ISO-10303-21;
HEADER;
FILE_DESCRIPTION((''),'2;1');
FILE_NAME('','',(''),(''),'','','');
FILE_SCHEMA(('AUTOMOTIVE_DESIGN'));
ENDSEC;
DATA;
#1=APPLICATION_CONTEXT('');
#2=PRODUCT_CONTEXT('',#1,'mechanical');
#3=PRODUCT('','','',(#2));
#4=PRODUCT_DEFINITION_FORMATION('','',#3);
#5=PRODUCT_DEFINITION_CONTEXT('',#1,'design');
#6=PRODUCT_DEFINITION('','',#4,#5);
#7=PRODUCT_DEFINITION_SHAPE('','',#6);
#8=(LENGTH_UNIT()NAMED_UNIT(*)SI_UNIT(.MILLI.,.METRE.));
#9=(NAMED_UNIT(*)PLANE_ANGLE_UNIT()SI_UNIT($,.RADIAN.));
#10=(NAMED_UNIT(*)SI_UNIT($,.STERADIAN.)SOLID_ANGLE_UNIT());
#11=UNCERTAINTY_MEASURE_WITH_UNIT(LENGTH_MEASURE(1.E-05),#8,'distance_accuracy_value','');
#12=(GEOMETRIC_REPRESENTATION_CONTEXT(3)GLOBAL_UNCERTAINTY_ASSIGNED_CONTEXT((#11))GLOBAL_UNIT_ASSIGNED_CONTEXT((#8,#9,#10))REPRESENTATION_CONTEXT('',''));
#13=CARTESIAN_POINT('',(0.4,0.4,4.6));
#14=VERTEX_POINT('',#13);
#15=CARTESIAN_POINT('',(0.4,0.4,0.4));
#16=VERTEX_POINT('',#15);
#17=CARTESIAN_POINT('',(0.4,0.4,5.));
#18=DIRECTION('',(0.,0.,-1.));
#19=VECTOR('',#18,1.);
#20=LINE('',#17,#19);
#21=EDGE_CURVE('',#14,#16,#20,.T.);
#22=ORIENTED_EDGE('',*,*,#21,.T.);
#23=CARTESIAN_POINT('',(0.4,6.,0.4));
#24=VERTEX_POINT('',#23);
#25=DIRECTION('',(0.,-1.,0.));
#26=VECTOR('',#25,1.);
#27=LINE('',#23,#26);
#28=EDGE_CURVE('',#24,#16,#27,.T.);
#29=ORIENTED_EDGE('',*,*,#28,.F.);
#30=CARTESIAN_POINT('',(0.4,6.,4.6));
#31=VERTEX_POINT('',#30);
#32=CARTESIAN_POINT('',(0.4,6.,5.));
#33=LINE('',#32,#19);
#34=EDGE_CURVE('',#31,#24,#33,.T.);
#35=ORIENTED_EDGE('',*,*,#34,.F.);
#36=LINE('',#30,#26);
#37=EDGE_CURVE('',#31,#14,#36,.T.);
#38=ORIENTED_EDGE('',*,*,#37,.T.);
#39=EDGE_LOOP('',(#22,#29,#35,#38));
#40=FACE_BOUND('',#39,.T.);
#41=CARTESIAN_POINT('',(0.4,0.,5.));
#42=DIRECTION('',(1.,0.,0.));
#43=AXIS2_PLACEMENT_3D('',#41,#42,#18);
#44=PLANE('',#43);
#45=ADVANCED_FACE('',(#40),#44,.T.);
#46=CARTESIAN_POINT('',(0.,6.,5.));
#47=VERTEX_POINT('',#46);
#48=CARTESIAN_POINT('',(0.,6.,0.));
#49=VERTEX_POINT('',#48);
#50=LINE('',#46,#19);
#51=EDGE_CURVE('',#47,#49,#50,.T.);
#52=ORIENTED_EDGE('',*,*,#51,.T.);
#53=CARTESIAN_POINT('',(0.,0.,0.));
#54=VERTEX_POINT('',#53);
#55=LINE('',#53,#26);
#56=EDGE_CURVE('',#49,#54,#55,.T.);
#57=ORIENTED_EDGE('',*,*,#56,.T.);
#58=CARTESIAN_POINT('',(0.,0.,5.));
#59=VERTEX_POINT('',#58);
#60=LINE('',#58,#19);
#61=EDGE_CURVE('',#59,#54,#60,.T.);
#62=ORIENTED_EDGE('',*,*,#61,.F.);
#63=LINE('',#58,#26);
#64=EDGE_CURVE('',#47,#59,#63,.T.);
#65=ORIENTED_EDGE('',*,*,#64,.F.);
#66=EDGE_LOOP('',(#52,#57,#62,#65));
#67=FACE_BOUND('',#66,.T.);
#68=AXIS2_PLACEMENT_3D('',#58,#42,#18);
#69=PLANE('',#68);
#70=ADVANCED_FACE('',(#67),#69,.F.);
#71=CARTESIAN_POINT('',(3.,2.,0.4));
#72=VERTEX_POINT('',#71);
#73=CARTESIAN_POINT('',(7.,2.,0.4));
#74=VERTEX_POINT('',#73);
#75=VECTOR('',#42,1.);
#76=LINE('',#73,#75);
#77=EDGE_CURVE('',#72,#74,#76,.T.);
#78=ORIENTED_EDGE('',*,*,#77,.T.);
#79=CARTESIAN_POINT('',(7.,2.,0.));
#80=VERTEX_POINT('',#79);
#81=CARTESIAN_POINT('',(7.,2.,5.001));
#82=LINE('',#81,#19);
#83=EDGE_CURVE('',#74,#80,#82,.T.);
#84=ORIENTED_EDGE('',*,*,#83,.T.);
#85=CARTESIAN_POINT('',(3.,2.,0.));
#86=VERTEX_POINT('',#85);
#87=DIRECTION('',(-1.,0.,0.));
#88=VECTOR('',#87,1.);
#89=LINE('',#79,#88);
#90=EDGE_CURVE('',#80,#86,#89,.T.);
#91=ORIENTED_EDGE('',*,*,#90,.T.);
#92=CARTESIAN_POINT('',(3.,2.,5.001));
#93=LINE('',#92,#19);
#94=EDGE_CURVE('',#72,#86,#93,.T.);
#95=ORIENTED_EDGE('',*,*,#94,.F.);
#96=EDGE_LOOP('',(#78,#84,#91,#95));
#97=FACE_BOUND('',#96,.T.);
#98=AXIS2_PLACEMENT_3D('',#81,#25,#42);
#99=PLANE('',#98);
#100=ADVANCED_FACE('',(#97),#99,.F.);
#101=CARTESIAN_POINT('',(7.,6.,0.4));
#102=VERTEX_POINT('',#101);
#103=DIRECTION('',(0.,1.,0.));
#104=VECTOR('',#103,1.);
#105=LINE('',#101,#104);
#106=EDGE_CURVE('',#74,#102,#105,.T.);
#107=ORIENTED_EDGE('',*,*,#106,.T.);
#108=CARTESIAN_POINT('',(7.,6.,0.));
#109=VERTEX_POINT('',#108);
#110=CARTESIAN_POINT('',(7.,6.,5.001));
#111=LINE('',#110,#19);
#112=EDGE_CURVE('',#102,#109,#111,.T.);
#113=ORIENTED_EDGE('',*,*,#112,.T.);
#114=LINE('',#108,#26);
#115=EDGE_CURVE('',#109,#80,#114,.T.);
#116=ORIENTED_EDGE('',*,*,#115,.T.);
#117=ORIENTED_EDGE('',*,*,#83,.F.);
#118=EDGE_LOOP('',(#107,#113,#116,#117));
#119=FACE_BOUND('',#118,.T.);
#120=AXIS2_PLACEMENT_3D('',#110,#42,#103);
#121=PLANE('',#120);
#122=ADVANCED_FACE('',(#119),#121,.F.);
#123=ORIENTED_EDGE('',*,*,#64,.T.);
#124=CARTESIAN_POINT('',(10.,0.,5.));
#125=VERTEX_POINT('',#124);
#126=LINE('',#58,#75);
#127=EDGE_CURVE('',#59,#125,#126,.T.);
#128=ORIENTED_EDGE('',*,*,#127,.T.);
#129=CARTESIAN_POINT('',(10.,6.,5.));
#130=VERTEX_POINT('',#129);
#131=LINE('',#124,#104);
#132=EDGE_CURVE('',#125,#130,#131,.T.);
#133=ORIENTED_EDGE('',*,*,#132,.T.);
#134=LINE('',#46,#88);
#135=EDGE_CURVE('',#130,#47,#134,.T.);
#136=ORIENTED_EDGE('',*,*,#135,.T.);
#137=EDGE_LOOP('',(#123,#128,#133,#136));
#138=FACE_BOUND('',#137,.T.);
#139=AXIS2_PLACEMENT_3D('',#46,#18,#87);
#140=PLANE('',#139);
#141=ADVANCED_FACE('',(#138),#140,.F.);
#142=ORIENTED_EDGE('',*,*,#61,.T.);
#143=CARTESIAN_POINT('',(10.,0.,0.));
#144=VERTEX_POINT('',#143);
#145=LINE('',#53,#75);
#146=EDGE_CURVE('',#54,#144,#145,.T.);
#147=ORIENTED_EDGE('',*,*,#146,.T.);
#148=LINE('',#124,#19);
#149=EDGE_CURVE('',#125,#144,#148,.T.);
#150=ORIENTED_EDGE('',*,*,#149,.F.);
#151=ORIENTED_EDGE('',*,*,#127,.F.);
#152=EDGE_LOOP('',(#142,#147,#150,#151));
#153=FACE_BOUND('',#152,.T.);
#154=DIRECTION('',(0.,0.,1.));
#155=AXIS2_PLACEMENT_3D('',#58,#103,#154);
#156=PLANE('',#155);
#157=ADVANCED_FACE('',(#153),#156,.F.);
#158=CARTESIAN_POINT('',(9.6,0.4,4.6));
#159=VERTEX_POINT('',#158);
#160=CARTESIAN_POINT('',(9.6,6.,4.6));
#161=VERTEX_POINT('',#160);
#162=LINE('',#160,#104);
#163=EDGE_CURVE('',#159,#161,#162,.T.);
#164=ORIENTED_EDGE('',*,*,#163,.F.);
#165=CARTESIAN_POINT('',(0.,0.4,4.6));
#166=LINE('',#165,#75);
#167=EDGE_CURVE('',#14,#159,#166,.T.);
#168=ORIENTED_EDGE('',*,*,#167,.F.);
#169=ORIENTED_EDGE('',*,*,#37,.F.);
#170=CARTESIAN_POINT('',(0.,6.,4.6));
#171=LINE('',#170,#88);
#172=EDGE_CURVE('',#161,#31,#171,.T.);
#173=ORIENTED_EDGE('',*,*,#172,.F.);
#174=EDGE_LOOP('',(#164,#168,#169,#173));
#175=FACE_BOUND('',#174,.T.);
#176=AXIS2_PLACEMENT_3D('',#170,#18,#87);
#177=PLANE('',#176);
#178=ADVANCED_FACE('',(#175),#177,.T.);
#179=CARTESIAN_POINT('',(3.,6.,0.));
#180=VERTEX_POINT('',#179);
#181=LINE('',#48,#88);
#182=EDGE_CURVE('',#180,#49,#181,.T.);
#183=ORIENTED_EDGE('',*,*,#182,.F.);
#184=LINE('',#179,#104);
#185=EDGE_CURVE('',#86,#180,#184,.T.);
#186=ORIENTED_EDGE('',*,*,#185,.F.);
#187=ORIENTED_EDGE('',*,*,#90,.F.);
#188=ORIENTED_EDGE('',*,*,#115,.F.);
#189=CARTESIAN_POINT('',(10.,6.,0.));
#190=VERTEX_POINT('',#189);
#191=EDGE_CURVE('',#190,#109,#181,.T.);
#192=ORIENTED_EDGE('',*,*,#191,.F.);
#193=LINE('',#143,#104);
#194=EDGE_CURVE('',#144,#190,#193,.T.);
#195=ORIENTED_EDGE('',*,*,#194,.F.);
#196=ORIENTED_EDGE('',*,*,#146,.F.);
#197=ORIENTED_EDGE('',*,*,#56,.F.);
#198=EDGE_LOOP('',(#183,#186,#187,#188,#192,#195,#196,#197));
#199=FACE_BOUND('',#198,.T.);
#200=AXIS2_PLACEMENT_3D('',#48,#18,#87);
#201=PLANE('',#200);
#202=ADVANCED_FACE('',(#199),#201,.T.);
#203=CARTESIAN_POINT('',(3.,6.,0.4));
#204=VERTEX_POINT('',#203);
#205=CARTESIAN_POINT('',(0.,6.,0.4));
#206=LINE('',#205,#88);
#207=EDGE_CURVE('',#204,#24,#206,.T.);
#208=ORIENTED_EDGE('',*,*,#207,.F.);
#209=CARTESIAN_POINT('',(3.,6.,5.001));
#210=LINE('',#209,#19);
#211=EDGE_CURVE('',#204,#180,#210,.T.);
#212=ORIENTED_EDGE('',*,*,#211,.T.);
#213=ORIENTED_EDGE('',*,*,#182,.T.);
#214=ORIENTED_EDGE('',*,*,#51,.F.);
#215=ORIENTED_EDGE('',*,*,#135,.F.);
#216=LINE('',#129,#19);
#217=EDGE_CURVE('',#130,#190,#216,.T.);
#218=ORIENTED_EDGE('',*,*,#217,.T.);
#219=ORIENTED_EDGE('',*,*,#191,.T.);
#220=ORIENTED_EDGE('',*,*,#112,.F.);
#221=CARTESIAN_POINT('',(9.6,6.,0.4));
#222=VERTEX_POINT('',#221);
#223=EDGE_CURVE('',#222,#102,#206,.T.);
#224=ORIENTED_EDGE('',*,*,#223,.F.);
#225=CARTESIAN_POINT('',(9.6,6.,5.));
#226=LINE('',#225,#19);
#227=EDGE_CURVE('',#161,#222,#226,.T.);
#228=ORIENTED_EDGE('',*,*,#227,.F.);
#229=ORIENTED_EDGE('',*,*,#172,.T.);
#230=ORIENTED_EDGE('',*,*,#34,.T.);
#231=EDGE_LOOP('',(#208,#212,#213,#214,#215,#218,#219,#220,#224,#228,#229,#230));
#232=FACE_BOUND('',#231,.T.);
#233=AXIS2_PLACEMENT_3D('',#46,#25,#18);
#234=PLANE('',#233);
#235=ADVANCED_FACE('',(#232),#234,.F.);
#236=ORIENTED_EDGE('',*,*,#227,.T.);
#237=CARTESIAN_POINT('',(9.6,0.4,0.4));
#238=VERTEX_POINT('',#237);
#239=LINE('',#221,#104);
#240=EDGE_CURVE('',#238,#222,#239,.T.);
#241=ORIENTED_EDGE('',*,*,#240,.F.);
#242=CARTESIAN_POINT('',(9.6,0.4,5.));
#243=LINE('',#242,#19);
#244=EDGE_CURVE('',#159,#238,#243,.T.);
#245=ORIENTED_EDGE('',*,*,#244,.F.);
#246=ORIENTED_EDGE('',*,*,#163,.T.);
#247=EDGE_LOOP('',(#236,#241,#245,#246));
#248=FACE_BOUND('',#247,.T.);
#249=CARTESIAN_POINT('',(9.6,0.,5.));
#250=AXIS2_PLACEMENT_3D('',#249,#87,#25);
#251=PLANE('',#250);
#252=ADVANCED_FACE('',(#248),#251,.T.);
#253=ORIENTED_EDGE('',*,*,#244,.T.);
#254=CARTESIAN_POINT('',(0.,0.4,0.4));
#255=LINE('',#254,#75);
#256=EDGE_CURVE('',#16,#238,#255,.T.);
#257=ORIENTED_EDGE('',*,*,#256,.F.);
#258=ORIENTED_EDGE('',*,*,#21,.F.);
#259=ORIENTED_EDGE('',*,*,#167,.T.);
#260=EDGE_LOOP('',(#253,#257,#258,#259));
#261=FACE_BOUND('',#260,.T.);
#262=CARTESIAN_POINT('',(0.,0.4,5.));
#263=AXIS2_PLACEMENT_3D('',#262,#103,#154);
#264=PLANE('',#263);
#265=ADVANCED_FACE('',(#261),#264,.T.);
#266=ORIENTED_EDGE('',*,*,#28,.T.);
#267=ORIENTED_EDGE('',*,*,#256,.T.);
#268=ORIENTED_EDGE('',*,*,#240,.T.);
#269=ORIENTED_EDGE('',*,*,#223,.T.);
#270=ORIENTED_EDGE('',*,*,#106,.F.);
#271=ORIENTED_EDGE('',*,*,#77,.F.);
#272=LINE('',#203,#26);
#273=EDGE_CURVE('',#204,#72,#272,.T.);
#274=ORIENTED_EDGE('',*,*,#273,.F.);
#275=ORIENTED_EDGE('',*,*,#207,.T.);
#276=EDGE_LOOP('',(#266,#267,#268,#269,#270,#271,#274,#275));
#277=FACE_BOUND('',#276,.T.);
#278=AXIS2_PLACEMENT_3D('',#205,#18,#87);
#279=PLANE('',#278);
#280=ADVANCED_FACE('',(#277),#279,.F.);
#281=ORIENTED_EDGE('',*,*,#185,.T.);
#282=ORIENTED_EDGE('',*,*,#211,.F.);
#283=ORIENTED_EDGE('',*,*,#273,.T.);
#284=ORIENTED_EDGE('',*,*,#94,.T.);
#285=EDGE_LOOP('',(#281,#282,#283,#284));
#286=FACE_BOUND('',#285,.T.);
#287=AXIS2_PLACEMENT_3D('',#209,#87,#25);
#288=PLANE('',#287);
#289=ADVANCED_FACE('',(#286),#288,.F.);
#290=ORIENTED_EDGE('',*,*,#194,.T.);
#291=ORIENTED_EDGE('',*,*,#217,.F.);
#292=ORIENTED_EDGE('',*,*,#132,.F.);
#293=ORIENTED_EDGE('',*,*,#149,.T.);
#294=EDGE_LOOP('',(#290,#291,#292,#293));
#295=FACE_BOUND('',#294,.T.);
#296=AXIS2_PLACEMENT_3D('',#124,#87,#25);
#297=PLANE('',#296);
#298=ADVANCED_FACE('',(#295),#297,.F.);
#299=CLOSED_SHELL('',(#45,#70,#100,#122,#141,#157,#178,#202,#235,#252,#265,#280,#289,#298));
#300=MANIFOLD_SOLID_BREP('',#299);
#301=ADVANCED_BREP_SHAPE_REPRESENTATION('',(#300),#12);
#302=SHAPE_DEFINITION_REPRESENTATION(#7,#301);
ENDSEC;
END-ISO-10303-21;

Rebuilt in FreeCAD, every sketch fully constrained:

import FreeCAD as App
import Part
import Sketcher

V = App.Vector
Q = App.Units.Quantity


def faces_at(feature, points):
    """Names of the faces that lie closest to the given points."""
    faces = feature.Shape.Faces
    near = lambda p: min(range(len(faces)), key=lambda i: faces[i].distToShape(Part.Vertex(*p))[0])
    return sorted({f"Face{near(p) + 1}" for p in points})


def add_polygon(sketch, points):
    """Adds a closed chain of lines whose ends are joined by coincident constraints."""
    first, n = sketch.GeometryCount, len(points)
    for a, b in zip(points, points[1:] + points[:1]):
        sketch.addGeometry(Part.LineSegment(App.Vector(*a, 0), App.Vector(*b, 0)), False)
    for i in range(n):
        sketch.addConstraint(Sketcher.Constraint("Coincident", first + i, 2, first + (i + 1) % n, 1))

doc = App.newDocument("Part")
params = doc.addObject("Spreadsheet::Sheet", "Params")
for row, (alias, value) in enumerate([
    ("sketch1_width", "10 mm"),
    ("sketch1_height", "6 mm"),
    ("pad1_length", "5 mm"),
    ("thickness_wall", "0.4 mm"),
    ("sketch2_width", "4 mm"),
], start=1):
    params.set(f"A{row}", alias)
    params.set(f"B{row}", "=" + value)
    params.setAlias(f"B{row}", alias)

body = doc.addObject("PartDesign::Body", "Body")

# Sketch on XY plane
sketch1 = body.newObject("Sketcher::SketchObject", "Sketch")
sketch1.AttachmentSupport = (doc.getObject("XY_Plane"), [""])
sketch1.MapMode = "FlatFace"
add_polygon(sketch1, [(0, 6), (0, 0), (10, 0), (10, 6)])  # lines 0-3
sketch1.addConstraint([
    Sketcher.Constraint("Vertical", 0),
    Sketcher.Constraint("Horizontal", 1),
    Sketcher.Constraint("Vertical", 2),
    Sketcher.Constraint("Horizontal", 3),
    Sketcher.Constraint("Coincident", 0, 2, -1, 1),
    Sketcher.Constraint("DistanceX", 1, 1, 1, 2, Q("10 mm")),
    Sketcher.Constraint("DistanceY", 0, 2, 0, 1, Q("6 mm")),
])
sketch1.setExpression("Constraints[9]", "Params.sketch1_width")
sketch1.setExpression("Constraints[10]", "Params.sketch1_height")
pad1 = body.newObject("PartDesign::Pad", "Pad")
pad1.Profile = sketch1
pad1.setExpression("Length", "Params.pad1_length")
doc.recompute()

thickness = body.newObject("PartDesign::Thickness", "Thickness")
thickness.Base = (pad1, faces_at(pad1, [(5, 6, 2.5)]))
thickness.setExpression("Value", "Params.thickness_wall")
thickness.Reversed = True
thickness.Join = "Intersection"

# Sketch on XY plane
sketch2 = body.newObject("Sketcher::SketchObject", "Sketch001")
sketch2.AttachmentSupport = (doc.getObject("XY_Plane"), [""])
sketch2.MapMode = "FlatFace"
add_polygon(sketch2, [(7, 6), (7, 2), (3, 2), (3, 6)])  # lines 0-3
sketch2.addConstraint([
    Sketcher.Constraint("Vertical", 0),
    Sketcher.Constraint("Horizontal", 1),
    Sketcher.Constraint("Vertical", 2),
    Sketcher.Constraint("Horizontal", 3),
    Sketcher.Constraint("Equal", 3, 0),
    Sketcher.Constraint("DistanceX", 1, 2, 1, 1, Q("4 mm")),
    Sketcher.Constraint("DistanceX", -1, 1, 0, 2, Q("7 mm")),
    Sketcher.Constraint("DistanceY", -1, 1, 0, 2, Q("2 mm")),
])
sketch2.setExpression("Constraints[9]", "Params.sketch2_width")
pocket1 = body.newObject("PartDesign::Pocket", "Pocket")
pocket1.Profile = sketch2
pocket1.Type = "UpToFirst"
pocket1.Reversed = True

doc.recompute()
